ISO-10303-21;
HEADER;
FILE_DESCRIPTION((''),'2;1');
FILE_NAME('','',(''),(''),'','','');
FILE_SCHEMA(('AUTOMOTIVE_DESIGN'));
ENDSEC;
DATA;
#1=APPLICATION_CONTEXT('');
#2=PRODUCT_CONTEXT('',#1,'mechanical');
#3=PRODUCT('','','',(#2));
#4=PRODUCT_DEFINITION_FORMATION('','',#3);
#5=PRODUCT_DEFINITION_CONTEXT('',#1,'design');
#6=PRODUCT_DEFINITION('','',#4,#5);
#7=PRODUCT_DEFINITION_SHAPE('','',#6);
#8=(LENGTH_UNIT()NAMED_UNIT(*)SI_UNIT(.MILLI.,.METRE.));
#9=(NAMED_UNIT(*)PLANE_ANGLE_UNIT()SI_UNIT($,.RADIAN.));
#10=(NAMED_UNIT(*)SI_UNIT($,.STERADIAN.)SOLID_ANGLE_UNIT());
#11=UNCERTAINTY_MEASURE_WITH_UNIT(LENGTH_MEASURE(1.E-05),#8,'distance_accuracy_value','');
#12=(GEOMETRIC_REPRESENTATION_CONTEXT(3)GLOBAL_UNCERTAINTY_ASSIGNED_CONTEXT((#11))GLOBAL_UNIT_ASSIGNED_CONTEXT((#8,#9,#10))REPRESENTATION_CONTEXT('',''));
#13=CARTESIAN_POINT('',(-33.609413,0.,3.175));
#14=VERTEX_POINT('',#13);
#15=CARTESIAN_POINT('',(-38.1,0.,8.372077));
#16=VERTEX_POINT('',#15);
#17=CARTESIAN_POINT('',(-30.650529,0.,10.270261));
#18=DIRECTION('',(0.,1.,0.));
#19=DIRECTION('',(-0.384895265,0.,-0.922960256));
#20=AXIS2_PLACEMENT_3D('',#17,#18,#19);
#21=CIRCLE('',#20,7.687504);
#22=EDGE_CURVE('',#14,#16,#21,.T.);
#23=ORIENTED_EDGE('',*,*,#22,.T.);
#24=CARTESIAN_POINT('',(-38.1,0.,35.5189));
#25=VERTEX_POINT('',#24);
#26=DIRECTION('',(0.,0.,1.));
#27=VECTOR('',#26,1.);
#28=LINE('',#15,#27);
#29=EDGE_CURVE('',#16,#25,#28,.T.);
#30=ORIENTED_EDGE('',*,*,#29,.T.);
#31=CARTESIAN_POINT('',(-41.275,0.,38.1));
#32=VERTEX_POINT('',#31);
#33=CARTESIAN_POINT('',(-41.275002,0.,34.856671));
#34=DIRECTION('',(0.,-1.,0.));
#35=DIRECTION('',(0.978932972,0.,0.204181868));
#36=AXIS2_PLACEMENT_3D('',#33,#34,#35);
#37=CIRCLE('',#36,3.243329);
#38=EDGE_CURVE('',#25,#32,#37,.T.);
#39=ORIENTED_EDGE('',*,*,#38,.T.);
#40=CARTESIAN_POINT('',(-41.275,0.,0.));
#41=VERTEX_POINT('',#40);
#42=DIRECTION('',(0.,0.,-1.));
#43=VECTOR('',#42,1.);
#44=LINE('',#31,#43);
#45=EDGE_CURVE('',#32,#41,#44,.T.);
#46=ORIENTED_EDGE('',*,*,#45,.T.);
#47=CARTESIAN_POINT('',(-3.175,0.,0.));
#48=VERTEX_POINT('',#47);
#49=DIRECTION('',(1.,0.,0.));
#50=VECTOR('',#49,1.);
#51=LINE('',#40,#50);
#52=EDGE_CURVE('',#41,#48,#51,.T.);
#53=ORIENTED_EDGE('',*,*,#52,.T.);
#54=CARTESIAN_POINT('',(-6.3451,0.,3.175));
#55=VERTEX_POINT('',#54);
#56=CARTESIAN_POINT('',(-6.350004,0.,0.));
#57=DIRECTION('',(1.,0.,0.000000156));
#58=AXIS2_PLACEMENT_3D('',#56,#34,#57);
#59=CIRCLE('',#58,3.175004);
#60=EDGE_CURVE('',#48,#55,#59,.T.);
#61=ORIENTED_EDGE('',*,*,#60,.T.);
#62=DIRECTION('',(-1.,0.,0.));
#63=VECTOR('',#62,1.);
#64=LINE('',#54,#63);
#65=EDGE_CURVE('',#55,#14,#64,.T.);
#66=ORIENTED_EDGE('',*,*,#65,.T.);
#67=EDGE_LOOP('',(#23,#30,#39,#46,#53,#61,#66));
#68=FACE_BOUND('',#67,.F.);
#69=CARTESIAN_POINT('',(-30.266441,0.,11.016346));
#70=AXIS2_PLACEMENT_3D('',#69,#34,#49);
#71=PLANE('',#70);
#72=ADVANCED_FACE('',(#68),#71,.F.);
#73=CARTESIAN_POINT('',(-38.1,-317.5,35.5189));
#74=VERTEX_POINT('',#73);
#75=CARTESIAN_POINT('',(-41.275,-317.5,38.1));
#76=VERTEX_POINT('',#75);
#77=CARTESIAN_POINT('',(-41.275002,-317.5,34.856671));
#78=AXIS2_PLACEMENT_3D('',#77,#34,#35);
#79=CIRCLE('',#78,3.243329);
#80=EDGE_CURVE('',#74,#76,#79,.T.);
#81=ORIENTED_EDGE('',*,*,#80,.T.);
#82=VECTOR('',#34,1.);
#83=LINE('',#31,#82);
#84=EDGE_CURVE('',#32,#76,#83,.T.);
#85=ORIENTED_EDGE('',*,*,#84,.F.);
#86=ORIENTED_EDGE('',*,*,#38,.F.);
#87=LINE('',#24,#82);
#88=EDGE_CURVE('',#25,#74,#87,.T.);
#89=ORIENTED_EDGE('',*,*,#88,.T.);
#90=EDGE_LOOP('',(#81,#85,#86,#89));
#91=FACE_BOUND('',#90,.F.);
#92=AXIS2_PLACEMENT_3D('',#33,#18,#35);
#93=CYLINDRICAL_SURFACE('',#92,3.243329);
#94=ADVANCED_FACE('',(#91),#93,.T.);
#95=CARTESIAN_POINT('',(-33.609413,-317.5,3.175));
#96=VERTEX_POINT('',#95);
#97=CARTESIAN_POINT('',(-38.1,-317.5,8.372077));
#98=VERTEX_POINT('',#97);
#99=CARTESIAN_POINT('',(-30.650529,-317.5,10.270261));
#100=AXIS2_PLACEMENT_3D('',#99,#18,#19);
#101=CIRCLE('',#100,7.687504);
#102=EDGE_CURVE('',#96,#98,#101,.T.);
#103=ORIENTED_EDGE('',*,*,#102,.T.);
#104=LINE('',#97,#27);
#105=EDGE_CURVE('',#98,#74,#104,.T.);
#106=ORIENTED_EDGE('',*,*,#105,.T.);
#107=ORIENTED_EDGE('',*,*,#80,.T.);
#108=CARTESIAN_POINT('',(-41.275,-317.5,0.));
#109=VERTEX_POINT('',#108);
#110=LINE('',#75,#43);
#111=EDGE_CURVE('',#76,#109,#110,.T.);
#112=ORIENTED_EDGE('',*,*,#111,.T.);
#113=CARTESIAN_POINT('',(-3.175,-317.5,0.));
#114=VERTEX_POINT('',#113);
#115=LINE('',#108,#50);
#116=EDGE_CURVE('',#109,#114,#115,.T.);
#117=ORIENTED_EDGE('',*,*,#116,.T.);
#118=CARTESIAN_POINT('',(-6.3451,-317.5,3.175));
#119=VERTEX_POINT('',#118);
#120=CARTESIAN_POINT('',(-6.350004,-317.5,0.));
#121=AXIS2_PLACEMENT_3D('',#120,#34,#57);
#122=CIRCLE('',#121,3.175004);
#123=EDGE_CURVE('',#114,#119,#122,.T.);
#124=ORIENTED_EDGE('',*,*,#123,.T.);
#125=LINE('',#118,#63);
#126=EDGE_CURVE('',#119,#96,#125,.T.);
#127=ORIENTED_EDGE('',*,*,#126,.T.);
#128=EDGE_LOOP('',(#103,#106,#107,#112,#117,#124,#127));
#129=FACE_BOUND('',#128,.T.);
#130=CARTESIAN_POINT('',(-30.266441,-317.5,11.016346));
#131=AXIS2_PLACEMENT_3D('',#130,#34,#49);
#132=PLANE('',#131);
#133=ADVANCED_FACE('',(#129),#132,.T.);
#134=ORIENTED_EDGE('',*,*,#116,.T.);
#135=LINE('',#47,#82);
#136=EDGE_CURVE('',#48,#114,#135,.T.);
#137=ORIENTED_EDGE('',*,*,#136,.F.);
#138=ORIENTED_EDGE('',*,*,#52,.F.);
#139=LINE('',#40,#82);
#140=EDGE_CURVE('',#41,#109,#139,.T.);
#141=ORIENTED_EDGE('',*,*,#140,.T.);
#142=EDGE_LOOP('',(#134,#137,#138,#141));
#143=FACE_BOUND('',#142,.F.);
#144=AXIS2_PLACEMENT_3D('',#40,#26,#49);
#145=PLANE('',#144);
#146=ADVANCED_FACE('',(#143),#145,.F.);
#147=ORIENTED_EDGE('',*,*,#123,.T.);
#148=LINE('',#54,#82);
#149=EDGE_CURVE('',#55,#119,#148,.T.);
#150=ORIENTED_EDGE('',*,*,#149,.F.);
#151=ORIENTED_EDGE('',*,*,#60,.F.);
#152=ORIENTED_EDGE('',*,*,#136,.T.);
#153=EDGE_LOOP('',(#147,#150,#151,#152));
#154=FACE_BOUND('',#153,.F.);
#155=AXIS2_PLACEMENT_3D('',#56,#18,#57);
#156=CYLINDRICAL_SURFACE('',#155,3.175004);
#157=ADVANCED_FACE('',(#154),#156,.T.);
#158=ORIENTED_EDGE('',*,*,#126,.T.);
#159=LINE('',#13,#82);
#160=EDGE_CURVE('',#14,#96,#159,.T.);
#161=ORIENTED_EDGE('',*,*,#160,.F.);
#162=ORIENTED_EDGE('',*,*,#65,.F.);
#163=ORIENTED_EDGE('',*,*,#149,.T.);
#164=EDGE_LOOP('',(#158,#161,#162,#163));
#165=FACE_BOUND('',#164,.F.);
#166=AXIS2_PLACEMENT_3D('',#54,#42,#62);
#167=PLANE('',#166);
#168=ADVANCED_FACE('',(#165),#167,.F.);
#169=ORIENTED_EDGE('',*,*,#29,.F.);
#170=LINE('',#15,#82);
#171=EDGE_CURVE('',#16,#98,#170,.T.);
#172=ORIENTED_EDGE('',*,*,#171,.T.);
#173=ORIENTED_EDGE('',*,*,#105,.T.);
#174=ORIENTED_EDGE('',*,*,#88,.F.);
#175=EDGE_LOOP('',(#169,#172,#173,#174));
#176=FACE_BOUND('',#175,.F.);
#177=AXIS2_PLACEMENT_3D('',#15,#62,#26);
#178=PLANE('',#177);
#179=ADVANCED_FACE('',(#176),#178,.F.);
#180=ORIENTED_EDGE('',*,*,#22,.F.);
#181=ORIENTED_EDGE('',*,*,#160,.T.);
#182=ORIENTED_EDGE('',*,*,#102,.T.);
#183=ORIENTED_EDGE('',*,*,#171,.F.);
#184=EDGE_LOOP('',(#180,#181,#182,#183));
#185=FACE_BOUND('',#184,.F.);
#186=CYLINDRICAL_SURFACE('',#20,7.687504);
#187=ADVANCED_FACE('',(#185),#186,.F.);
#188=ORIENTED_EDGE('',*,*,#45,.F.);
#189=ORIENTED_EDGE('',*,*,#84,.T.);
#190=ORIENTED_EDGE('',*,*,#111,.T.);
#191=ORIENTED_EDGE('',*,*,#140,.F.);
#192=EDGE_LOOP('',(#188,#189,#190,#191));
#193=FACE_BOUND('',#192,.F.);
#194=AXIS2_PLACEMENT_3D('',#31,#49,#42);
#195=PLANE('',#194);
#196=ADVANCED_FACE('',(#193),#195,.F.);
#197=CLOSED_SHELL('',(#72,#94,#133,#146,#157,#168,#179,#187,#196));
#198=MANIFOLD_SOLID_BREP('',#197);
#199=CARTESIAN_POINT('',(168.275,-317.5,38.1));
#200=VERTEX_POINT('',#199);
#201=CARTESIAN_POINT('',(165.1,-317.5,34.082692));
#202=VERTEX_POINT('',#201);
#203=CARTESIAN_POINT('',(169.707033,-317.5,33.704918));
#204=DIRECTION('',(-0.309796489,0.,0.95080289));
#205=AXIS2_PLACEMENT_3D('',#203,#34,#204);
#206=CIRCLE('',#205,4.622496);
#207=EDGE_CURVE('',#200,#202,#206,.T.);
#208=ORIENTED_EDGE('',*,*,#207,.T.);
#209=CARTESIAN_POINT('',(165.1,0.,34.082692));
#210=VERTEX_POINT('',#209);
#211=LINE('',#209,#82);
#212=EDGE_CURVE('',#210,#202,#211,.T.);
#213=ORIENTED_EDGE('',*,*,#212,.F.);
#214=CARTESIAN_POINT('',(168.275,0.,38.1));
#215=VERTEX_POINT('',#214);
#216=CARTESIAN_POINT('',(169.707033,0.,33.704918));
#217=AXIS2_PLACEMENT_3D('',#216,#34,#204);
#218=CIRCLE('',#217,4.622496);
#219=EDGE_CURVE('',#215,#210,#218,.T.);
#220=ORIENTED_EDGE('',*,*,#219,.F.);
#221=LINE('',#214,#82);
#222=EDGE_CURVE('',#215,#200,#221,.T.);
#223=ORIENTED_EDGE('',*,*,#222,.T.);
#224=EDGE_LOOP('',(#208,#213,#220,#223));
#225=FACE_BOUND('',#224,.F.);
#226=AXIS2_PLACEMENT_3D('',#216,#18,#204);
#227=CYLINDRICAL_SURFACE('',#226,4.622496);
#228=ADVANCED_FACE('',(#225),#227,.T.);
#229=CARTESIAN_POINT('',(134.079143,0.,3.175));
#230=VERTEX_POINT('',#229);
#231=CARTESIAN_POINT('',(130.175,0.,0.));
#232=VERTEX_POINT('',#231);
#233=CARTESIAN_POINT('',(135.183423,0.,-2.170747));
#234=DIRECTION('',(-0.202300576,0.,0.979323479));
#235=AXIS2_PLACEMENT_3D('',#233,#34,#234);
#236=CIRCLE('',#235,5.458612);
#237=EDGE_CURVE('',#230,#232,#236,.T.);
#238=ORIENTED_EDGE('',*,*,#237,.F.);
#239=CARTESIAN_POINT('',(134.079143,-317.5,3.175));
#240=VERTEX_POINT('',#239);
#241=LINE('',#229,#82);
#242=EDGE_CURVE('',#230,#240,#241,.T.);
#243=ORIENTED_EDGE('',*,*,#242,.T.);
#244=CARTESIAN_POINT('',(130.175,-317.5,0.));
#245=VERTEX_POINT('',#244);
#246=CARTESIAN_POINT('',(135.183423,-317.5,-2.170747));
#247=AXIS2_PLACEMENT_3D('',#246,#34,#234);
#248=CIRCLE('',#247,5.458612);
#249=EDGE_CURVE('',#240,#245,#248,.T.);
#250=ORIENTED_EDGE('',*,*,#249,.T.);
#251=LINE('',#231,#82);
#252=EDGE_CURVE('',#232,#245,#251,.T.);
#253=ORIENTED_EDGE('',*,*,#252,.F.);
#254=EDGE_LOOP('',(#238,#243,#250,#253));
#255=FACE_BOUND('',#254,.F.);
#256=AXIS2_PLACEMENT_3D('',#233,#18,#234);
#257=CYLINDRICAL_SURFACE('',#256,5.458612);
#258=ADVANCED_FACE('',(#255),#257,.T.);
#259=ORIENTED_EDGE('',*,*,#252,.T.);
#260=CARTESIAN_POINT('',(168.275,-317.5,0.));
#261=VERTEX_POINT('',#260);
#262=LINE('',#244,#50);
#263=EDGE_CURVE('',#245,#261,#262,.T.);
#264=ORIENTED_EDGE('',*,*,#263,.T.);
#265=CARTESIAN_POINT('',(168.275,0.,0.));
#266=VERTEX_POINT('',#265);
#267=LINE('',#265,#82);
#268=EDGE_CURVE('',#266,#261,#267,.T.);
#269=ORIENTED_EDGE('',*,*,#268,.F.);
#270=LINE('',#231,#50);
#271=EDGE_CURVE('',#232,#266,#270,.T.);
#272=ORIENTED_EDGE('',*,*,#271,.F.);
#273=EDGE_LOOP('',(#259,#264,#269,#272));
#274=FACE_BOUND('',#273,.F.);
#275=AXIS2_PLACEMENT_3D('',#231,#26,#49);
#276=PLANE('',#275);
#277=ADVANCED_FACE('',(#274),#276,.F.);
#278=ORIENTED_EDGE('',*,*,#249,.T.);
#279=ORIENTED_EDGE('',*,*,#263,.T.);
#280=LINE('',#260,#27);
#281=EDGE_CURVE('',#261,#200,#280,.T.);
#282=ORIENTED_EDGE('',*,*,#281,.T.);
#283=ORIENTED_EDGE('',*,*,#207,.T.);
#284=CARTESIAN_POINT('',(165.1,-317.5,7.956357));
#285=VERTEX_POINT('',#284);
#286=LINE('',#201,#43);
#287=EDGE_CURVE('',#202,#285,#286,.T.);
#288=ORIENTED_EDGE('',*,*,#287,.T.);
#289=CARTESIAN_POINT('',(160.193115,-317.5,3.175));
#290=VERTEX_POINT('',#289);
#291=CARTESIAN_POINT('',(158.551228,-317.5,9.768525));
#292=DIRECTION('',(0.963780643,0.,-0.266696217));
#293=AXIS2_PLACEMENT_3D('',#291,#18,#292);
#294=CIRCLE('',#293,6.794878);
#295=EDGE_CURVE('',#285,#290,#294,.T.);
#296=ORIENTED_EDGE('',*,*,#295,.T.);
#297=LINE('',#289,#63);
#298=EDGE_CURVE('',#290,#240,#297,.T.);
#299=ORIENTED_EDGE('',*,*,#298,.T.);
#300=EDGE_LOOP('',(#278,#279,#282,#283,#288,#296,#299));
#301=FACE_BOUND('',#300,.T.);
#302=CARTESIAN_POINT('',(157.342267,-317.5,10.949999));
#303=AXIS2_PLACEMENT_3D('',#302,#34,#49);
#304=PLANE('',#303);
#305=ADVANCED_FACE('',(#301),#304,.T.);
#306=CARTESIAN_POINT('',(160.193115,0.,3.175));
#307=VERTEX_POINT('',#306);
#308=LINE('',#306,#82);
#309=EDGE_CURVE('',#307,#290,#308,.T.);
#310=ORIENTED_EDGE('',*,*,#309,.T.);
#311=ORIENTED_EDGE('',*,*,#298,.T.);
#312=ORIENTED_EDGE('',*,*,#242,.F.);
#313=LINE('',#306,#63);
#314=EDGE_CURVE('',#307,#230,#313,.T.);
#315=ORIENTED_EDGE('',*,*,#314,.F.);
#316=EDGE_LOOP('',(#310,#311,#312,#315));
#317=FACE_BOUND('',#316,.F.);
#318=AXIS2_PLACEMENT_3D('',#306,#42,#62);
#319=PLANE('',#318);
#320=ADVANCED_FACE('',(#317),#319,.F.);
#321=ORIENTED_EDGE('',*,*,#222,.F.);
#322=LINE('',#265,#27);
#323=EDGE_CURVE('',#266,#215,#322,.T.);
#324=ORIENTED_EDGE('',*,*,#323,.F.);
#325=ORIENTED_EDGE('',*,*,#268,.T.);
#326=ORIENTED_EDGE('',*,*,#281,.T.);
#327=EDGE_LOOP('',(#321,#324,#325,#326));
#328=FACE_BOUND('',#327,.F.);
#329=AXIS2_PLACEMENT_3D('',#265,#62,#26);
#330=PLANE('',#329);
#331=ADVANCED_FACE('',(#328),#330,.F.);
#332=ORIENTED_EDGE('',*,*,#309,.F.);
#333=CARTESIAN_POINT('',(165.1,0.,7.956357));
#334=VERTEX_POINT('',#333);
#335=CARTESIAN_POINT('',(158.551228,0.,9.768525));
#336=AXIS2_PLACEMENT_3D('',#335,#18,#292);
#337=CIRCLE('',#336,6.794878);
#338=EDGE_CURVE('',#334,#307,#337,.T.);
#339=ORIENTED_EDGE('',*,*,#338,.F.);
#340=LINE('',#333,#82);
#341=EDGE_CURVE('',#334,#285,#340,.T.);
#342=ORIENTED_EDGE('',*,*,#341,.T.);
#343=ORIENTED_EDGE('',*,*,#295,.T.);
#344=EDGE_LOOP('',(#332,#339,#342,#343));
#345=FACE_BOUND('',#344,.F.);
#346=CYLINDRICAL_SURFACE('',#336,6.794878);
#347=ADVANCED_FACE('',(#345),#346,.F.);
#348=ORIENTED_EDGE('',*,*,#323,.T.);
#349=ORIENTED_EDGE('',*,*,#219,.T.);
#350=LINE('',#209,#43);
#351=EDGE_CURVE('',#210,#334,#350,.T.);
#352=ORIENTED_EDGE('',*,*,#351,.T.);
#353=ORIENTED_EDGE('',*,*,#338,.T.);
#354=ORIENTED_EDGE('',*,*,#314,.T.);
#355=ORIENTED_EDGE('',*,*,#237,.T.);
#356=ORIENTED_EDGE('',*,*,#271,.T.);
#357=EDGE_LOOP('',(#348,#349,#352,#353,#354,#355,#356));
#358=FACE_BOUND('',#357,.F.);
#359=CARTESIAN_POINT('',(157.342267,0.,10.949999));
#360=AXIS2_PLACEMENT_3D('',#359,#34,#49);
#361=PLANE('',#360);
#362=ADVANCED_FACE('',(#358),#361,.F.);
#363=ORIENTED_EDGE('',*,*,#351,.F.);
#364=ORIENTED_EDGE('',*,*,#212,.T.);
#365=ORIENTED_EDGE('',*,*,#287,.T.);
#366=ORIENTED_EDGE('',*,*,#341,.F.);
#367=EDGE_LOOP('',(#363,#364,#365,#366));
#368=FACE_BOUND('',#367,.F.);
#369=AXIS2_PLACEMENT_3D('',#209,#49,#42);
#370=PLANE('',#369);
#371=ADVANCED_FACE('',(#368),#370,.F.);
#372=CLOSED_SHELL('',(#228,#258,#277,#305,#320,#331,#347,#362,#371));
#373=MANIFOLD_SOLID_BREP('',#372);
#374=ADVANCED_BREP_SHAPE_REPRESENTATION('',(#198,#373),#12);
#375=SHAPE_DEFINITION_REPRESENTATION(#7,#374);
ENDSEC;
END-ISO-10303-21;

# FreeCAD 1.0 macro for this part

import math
import FreeCAD as App
import Part
import Sketcher
Q = App.Units.Quantity

doc = App.newDocument("Part")
body = doc.addObject("PartDesign::Body", "Body")
body.AllowCompound = True

sketch1 = body.newObject("Sketcher::SketchObject", "Sketch")
sketch1.AttachmentSupport = (doc.getObject("XZ_Plane"), [""])
sketch1.MapMode = "FlatFace"
sketch1.addGeometry(Part.LineSegment(App.Vector(-41.3, 0, 0), App.Vector(-3.2, 0, 0)), False)
sketch1.addGeometry(Part.ArcOfCircle(Part.Circle(App.Vector(-6.4, 0, 0), App.Vector(0, 0, 1), 3.2), math.radians(0), math.radians(90)), False)
sketch1.addGeometry(Part.LineSegment(App.Vector(-6.3, 3.2, 0), App.Vector(-33.6, 3.2, 0)), False)
sketch1.addGeometry(Part.ArcOfCircle(Part.Circle(App.Vector(-30.7, 10.3, 0), App.Vector(0, 0, 1), 7.7), math.radians(-166), math.radians(-113)), False)
sketch1.addGeometry(Part.LineSegment(App.Vector(-38.1, 8.4, 0), App.Vector(-38.1, 35.5, 0)), False)
sketch1.addGeometry(Part.ArcOfCircle(Part.Circle(App.Vector(-41.3, 34.9, 0), App.Vector(0, 0, 1), 3.2), math.radians(12), math.radians(90)), False)
sketch1.addGeometry(Part.LineSegment(App.Vector(-41.3, 38.1, 0), App.Vector(-41.3, 0, 0)), False)
sketch1.addGeometry(Part.ArcOfCircle(Part.Circle(App.Vector(135.2, -2.2, 0), App.Vector(0, 0, 1), 5.5), math.radians(102), math.radians(157)), False)
sketch1.addGeometry(Part.LineSegment(App.Vector(130.2, 0, 0), App.Vector(168.3, 0, 0)), False)
sketch1.addGeometry(Part.LineSegment(App.Vector(168.3, 0, 0), App.Vector(168.3, 38.1, 0)), False)
sketch1.addGeometry(Part.ArcOfCircle(Part.Circle(App.Vector(169.7, 33.7, 0), App.Vector(0, 0, 1), 4.6), math.radians(108), math.radians(175)), False)
sketch1.addGeometry(Part.LineSegment(App.Vector(165.1, 34.1, 0), App.Vector(165.1, 8, 0)), False)
sketch1.addGeometry(Part.ArcOfCircle(Part.Circle(App.Vector(158.6, 9.8, 0), App.Vector(0, 0, 1), 6.8), math.radians(-76), math.radians(-15)), False)
sketch1.addGeometry(Part.LineSegment(App.Vector(160.2, 3.2, 0), App.Vector(134.1, 3.2, 0)), False)
sketch1.addConstraint(Sketcher.Constraint("Coincident", 0, 2, 1, 1))
sketch1.addConstraint(Sketcher.Constraint("Coincident", 1, 2, 2, 1))
sketch1.addConstraint(Sketcher.Constraint("Coincident", 2, 2, 3, 2))
sketch1.addConstraint(Sketcher.Constraint("Coincident", 3, 1, 4, 1))
sketch1.addConstraint(Sketcher.Constraint("Coincident", 4, 2, 5, 1))
sketch1.addConstraint(Sketcher.Constraint("Coincident", 5, 2, 6, 1))
sketch1.addConstraint(Sketcher.Constraint("Coincident", 6, 2, 0, 1))
sketch1.addConstraint(Sketcher.Constraint("Coincident", 7, 2, 8, 1))
sketch1.addConstraint(Sketcher.Constraint("Coincident", 8, 2, 9, 1))
sketch1.addConstraint(Sketcher.Constraint("Coincident", 9, 2, 10, 1))
sketch1.addConstraint(Sketcher.Constraint("Coincident", 10, 2, 11, 1))
sketch1.addConstraint(Sketcher.Constraint("Coincident", 11, 2, 12, 2))
sketch1.addConstraint(Sketcher.Constraint("Coincident", 12, 1, 13, 1))
sketch1.addConstraint(Sketcher.Constraint("Coincident", 13, 2, 7, 1))
sketch1.addConstraint(Sketcher.Constraint("Horizontal", 0))
sketch1.addConstraint(Sketcher.Constraint("Horizontal", 2))
sketch1.addConstraint(Sketcher.Constraint("Vertical", 4))
sketch1.addConstraint(Sketcher.Constraint("Vertical", 6))
sketch1.addConstraint(Sketcher.Constraint("Horizontal", 8))
sketch1.addConstraint(Sketcher.Constraint("Vertical", 9))
sketch1.addConstraint(Sketcher.Constraint("Vertical", 11))
sketch1.addConstraint(Sketcher.Constraint("Horizontal", 13))
sketch1.addConstraint(Sketcher.Constraint("PointOnObject", 1, 3, -1))
sketch1.addConstraint(Sketcher.Constraint("PointOnObject", 0, 2, -1))
sketch1.addConstraint(Sketcher.Constraint("PointOnObject", 7, 2, -1))
sketch1.addConstraint(Sketcher.Constraint("Horizontal", 5, 2, 9, 2))
sketch1.addConstraint(Sketcher.Constraint("Horizontal", 2, 2, 12, 1))
sketch1.addConstraint(Sketcher.Constraint("Equal", 0, 8))
sketch1.addConstraint(Sketcher.Constraint("Equal", 8, 6))
sketch1.addConstraint(Sketcher.Constraint("DistanceX", 0, 1, 0, 2, Q("1.5 in")))
sketch1.addConstraint(Sketcher.Constraint("Radius", 1, Q("0.1250002 in")))
sketch1.addConstraint(Sketcher.Constraint("DistanceX", 3, 1, -1, 1, Q("1.5 in")))
sketch1.addConstraint(Sketcher.Constraint("DistanceX", -1, 1, 10, 2, Q("6.5 in")))
sketch1.addConstraint(Sketcher.Constraint("DistanceX", 5, 3, 0, 2, Q("1.5000001 in")))
sketch1.addConstraint(Sketcher.Constraint("DistanceX", 1, 3, -1, 1, Q("0.2500002 in")))
sketch1.addConstraint(Sketcher.Constraint("DistanceX", 0, 2, 7, 2, Q("5.25 in")))
sketch1.addConstraint(Sketcher.Constraint("Radius", 5, Q("3.243329 mm")))
sketch1.addConstraint(Sketcher.Constraint("Radius", 12, Q("6.794878 mm")))
sketch1.addConstraint(Sketcher.Constraint("Radius", 3, Q("7.687504 mm")))
sketch1.addConstraint(Sketcher.Constraint("Radius", 7, Q("5.458612 mm")))
sketch1.addConstraint(Sketcher.Constraint("Radius", 10, Q("4.622496 mm")))
sketch1.addConstraint(Sketcher.Constraint("DistanceX", 1, 2, -1, 1, Q("6.3451 mm")))
sketch1.addConstraint(Sketcher.Constraint("DistanceX", 2, 2, 2, 1, Q("27.264313 mm")))
sketch1.addConstraint(Sketcher.Constraint("DistanceX", 13, 2, 13, 1, Q("26.113972 mm")))
sketch1.addConstraint(Sketcher.Constraint("DistanceY", 4, 1, 4, 2, Q("27.146823 mm")))
sketch1.addConstraint(Sketcher.Constraint("DistanceY", 11, 2, 11, 1, Q("26.126335 mm")))
sketch1.addConstraint(Sketcher.Constraint("DistanceY", -1, 1, 10, 2, Q("34.082692 mm")))
sketch1.addConstraint(Sketcher.Constraint("DistanceY", 7, 3, 5, 3, Q("37.027418 mm")))
pad1 = body.newObject("PartDesign::Pad", "Pad")
pad1.Profile = sketch1
pad1.Length = Q("12.5 in")

doc.recompute()
